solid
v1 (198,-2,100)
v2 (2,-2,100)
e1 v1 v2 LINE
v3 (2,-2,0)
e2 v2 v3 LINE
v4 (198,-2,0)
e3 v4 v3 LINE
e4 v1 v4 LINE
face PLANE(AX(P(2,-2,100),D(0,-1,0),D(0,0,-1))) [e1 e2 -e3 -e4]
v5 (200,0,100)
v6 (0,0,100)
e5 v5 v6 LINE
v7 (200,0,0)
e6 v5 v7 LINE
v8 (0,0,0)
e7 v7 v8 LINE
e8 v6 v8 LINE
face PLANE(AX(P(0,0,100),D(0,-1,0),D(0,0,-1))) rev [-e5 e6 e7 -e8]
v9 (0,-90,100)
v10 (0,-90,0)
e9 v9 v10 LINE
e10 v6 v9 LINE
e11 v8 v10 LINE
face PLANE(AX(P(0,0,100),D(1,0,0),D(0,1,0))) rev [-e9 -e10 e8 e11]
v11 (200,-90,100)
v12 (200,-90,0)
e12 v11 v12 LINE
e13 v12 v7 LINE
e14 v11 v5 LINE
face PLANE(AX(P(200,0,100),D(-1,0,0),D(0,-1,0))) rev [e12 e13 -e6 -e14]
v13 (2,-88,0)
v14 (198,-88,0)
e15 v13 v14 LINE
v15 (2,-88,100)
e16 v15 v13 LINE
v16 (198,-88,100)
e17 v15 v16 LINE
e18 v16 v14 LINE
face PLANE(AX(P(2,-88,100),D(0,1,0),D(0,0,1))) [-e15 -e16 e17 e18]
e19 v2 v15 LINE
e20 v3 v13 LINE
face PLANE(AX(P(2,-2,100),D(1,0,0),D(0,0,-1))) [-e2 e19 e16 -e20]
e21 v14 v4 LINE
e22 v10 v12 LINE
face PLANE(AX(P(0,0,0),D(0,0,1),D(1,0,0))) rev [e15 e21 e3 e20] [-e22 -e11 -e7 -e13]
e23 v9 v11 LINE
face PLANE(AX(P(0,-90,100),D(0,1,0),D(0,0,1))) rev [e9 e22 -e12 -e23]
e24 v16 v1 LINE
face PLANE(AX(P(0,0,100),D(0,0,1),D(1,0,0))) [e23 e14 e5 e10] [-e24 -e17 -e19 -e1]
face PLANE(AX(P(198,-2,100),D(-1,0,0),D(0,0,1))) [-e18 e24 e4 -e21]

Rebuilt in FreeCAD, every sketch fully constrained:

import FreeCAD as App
import Part
import Sketcher

doc = App.newDocument("Part")
params = doc.addObject("Spreadsheet::Sheet", "Params")
for row, (alias, value) in enumerate([
    ("sketch1_width", "200 mm"),
    ("sketch1_width2", "196 mm"),
    ("sketch1_height", "90 mm"),
    ("sketch1_height2", "86 mm"),
    ("pad1_length", "100 mm"),
], start=1):
    params.set(f"A{row}", alias)
    params.set(f"B{row}", "=" + value)
    params.setAlias(f"B{row}", alias)

body = doc.addObject("PartDesign::Body", "Body")

sketch1 = doc.addObject("Sketcher::SketchObject", "Sketch")
body.addObject(sketch1)
sketch1.AttachmentSupport = (doc.XY_Plane, [""])
sketch1.MapMode = "FlatFace"
sketch1.addGeometry([
    Part.LineSegment(App.Vector(0, 0, 0), App.Vector(0, -90, 0)),
    Part.LineSegment(App.Vector(0, -90, 0), App.Vector(200, -90, 0)),
    Part.LineSegment(App.Vector(200, -90, 0), App.Vector(200, 0, 0)),
    Part.LineSegment(App.Vector(200, 0, 0), App.Vector(0, 0, 0)),
    Part.LineSegment(App.Vector(198, -88, 0), App.Vector(2, -88, 0)),
    Part.LineSegment(App.Vector(2, -88, 0), App.Vector(2, -2, 0)),
    Part.LineSegment(App.Vector(2, -2, 0), App.Vector(198, -2, 0)),
    Part.LineSegment(App.Vector(198, -2, 0), App.Vector(198, -88, 0)),
], False)
sketch1.addConstraint([
    Sketcher.Constraint("Coincident", 0, 2, 1, 1),
    Sketcher.Constraint("Coincident", 1, 2, 2, 1),
    Sketcher.Constraint("Coincident", 2, 2, 3, 1),
    Sketcher.Constraint("Coincident", 3, 2, 0, 1),
    Sketcher.Constraint("Coincident", 4, 2, 5, 1),
    Sketcher.Constraint("Coincident", 5, 2, 6, 1),
    Sketcher.Constraint("Coincident", 6, 2, 7, 1),
    Sketcher.Constraint("Coincident", 7, 2, 4, 1),
    Sketcher.Constraint("Vertical", 0),
    Sketcher.Constraint("Horizontal", 1),
    Sketcher.Constraint("Vertical", 2),
    Sketcher.Constraint("Horizontal", 3),
    Sketcher.Constraint("Horizontal", 4),
    Sketcher.Constraint("Vertical", 5),
    Sketcher.Constraint("Horizontal", 6),
    Sketcher.Constraint("Vertical", 7),
    Sketcher.Constraint("Coincident", 3, 2, -1, 1),
    Sketcher.Constraint("DistanceX", 1, 1, 1, 2, 200.0),
    Sketcher.Constraint("DistanceX", 4, 2, 4, 1, 196.0),
    Sketcher.Constraint("DistanceY", 0, 2, 0, 1, 90.0),
    Sketcher.Constraint("DistanceY", 5, 1, 5, 2, 86.0),
    Sketcher.Constraint("DistanceX", -1, 1, 4, 2, 2.0),
    Sketcher.Constraint("DistanceY", 4, 2, -1, 1, 88.0),
])
sketch1.setExpression("Constraints[17]", "Params.sketch1_width")
sketch1.setExpression("Constraints[18]", "Params.sketch1_width2")
sketch1.setExpression("Constraints[19]", "Params.sketch1_height")
sketch1.setExpression("Constraints[20]", "Params.sketch1_height2")
pad1 = doc.addObject("PartDesign::Pad", "Pad")
body.addObject(pad1)
pad1.Profile = sketch1
pad1.setExpression("Length", "Params.pad1_length")

doc.recompute()
